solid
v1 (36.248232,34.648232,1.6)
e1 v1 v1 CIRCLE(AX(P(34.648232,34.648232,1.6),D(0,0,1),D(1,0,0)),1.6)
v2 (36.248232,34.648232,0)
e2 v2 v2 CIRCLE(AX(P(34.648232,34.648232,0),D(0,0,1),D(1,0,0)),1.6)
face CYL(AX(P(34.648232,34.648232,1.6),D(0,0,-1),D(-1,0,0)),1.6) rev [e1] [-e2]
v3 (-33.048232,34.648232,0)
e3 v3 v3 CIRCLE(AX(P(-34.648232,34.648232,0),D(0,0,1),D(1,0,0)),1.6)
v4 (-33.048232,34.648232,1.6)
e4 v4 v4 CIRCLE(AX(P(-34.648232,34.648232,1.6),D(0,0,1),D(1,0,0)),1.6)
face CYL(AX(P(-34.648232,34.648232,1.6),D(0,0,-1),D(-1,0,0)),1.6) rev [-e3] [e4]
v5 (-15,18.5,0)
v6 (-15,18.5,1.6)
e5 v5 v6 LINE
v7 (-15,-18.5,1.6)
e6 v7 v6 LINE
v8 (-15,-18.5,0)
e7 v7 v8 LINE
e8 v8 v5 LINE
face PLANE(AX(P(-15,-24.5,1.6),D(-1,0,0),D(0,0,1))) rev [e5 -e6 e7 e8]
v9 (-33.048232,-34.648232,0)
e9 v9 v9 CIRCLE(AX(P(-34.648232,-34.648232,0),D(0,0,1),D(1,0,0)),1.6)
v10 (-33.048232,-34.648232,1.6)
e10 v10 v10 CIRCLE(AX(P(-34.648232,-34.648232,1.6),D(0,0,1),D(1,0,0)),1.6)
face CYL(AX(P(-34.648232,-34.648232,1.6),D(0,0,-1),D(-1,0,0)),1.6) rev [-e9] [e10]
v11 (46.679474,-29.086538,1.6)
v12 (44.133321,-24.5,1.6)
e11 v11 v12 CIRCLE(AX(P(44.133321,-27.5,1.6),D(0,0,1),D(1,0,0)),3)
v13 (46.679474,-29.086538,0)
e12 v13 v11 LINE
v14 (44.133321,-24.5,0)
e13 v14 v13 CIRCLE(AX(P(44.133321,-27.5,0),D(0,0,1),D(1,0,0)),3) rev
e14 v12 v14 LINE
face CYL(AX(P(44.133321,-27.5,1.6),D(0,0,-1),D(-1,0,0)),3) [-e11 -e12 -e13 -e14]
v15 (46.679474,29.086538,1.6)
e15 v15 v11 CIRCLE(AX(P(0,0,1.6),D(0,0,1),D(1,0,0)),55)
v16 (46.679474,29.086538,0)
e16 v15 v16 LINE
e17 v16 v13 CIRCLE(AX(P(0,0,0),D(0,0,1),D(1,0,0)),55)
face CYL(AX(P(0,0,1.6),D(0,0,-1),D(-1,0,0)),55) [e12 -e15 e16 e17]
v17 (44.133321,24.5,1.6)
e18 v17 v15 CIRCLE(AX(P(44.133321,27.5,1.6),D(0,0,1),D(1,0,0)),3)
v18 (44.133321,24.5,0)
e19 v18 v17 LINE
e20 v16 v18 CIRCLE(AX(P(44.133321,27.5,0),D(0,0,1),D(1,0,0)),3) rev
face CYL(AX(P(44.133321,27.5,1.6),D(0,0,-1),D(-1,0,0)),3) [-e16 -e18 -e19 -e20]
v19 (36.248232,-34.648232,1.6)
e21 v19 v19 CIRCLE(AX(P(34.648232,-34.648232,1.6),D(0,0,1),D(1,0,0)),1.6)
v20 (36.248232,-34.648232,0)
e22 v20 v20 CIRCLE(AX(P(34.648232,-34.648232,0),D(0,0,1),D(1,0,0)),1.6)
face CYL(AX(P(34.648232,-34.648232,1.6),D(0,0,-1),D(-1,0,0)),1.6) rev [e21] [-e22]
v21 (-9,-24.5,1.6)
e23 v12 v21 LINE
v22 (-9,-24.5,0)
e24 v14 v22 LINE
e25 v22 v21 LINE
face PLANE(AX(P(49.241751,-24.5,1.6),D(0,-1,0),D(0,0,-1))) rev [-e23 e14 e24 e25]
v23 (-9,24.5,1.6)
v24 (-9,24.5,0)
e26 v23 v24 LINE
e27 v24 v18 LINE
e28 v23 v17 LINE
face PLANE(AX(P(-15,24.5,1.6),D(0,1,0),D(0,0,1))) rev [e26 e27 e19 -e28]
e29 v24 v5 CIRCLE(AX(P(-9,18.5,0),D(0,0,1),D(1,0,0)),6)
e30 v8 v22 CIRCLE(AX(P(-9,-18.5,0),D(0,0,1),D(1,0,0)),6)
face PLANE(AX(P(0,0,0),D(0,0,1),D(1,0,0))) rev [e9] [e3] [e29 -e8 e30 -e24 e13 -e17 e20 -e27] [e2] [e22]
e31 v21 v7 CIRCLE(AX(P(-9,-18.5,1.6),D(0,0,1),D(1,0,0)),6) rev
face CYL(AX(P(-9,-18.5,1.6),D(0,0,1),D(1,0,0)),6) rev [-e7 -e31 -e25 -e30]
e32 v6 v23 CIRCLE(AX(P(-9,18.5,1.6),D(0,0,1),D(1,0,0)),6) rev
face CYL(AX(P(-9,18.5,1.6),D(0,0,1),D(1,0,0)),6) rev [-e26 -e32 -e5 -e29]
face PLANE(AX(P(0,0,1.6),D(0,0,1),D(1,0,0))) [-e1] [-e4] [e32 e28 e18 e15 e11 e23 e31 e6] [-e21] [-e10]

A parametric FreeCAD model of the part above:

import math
import FreeCAD as App
import Part
import Sketcher

V = App.Vector


def edges_at(feature, points):
    """Names of the edges that pass closest to the given points."""
    edges = feature.Shape.Edges
    near = lambda p: min(range(len(edges)), key=lambda i: edges[i].distToShape(Part.Vertex(*p))[0])
    return sorted({f"Edge{near(p) + 1}" for p in points})

doc = App.newDocument("Part")
body = doc.addObject("PartDesign::Body", "Body")

sketch1 = body.newObject("Sketcher::SketchObject", "Sketch")
sketch1.AttachmentSupport = (doc.getObject("XY_Plane"), [""])
sketch1.MapMode = "FlatFace"
sketch1.addGeometry([
    Part.LineSegment(V(49.2, -24.5, 0), V(-15, -24.5, 0)),
    Part.LineSegment(V(-15, -24.5, 0), V(-15, 24.5, 0)),
    Part.LineSegment(V(-15, 24.5, 0), V(49.2, 24.5, 0)),
    Part.ArcOfCircle(Part.Circle(V(0, 0, 0), V(0, 0, 1), 55), math.radians(26), math.radians(334)),
    Part.Circle(V(-34.6, -34.6, 0), V(0, 0, 1), 1.6),
    Part.Circle(V(34.6, -34.6, 0), V(0, 0, 1), 1.6),
    Part.Circle(V(-34.6, 34.6, 0), V(0, 0, 1), 1.6),
    Part.Circle(V(34.6, 34.6, 0), V(0, 0, 1), 1.6),
], False)
sketch1.addConstraint([
    Sketcher.Constraint("Coincident", 0, 2, 1, 1),
    Sketcher.Constraint("Coincident", 1, 2, 2, 1),
    Sketcher.Constraint("Coincident", 2, 2, 3, 1),
    Sketcher.Constraint("Coincident", 3, 2, 0, 1),
    Sketcher.Constraint("Horizontal", 0),
    Sketcher.Constraint("Vertical", 1),
    Sketcher.Constraint("Horizontal", 2),
    Sketcher.Constraint("Coincident", 3, 3, -1, 1),
    Sketcher.Constraint("Equal", 4, 5),
    Sketcher.Constraint("Equal", 5, 6),
    Sketcher.Constraint("Equal", 6, 7),
    Sketcher.Constraint("Symmetric", 5, 3, 6, 3, -1, 1),
    Sketcher.Constraint("Symmetric", 4, 3, 7, 3, -1, 1),
    Sketcher.Constraint("Symmetric", 4, 3, 5, 3, -2),
    Sketcher.Constraint("Vertical", 2, 2, 3, 2),
    Sketcher.Constraint("Radius", 3, 55.0),
    Sketcher.Constraint("Diameter", 4, 3.2),
    Sketcher.Constraint("DistanceY", 1, 1, 1, 2, 49.0),
    Sketcher.Constraint("DistanceX", 0, 2, -1, 1, 15.0),
    Sketcher.Constraint("DistanceX", 7, 3, 2, 2, 14.593518),
    Sketcher.Constraint("DistanceY", 4, 3, -1, 1, 34.648232),
])
pad1 = body.newObject("PartDesign::Pad", "Pad")
pad1.Profile = sketch1
pad1.Length = 1.6
doc.recompute()

fillet = body.newObject("PartDesign::Fillet", "Fillet")
fillet.Base = (pad1, edges_at(pad1, [(-15, 24.5, 0.8), (-15, -24.5, 0.8)]))
fillet.Radius = 6
doc.recompute()

fillet2 = body.newObject("PartDesign::Fillet", "Fillet001")
fillet2.Base = (fillet, edges_at(fillet, [(49.242, 24.5, 0.8), (49.242, -24.5, 0.8)]))
fillet2.Radius = 3

doc.recompute()
